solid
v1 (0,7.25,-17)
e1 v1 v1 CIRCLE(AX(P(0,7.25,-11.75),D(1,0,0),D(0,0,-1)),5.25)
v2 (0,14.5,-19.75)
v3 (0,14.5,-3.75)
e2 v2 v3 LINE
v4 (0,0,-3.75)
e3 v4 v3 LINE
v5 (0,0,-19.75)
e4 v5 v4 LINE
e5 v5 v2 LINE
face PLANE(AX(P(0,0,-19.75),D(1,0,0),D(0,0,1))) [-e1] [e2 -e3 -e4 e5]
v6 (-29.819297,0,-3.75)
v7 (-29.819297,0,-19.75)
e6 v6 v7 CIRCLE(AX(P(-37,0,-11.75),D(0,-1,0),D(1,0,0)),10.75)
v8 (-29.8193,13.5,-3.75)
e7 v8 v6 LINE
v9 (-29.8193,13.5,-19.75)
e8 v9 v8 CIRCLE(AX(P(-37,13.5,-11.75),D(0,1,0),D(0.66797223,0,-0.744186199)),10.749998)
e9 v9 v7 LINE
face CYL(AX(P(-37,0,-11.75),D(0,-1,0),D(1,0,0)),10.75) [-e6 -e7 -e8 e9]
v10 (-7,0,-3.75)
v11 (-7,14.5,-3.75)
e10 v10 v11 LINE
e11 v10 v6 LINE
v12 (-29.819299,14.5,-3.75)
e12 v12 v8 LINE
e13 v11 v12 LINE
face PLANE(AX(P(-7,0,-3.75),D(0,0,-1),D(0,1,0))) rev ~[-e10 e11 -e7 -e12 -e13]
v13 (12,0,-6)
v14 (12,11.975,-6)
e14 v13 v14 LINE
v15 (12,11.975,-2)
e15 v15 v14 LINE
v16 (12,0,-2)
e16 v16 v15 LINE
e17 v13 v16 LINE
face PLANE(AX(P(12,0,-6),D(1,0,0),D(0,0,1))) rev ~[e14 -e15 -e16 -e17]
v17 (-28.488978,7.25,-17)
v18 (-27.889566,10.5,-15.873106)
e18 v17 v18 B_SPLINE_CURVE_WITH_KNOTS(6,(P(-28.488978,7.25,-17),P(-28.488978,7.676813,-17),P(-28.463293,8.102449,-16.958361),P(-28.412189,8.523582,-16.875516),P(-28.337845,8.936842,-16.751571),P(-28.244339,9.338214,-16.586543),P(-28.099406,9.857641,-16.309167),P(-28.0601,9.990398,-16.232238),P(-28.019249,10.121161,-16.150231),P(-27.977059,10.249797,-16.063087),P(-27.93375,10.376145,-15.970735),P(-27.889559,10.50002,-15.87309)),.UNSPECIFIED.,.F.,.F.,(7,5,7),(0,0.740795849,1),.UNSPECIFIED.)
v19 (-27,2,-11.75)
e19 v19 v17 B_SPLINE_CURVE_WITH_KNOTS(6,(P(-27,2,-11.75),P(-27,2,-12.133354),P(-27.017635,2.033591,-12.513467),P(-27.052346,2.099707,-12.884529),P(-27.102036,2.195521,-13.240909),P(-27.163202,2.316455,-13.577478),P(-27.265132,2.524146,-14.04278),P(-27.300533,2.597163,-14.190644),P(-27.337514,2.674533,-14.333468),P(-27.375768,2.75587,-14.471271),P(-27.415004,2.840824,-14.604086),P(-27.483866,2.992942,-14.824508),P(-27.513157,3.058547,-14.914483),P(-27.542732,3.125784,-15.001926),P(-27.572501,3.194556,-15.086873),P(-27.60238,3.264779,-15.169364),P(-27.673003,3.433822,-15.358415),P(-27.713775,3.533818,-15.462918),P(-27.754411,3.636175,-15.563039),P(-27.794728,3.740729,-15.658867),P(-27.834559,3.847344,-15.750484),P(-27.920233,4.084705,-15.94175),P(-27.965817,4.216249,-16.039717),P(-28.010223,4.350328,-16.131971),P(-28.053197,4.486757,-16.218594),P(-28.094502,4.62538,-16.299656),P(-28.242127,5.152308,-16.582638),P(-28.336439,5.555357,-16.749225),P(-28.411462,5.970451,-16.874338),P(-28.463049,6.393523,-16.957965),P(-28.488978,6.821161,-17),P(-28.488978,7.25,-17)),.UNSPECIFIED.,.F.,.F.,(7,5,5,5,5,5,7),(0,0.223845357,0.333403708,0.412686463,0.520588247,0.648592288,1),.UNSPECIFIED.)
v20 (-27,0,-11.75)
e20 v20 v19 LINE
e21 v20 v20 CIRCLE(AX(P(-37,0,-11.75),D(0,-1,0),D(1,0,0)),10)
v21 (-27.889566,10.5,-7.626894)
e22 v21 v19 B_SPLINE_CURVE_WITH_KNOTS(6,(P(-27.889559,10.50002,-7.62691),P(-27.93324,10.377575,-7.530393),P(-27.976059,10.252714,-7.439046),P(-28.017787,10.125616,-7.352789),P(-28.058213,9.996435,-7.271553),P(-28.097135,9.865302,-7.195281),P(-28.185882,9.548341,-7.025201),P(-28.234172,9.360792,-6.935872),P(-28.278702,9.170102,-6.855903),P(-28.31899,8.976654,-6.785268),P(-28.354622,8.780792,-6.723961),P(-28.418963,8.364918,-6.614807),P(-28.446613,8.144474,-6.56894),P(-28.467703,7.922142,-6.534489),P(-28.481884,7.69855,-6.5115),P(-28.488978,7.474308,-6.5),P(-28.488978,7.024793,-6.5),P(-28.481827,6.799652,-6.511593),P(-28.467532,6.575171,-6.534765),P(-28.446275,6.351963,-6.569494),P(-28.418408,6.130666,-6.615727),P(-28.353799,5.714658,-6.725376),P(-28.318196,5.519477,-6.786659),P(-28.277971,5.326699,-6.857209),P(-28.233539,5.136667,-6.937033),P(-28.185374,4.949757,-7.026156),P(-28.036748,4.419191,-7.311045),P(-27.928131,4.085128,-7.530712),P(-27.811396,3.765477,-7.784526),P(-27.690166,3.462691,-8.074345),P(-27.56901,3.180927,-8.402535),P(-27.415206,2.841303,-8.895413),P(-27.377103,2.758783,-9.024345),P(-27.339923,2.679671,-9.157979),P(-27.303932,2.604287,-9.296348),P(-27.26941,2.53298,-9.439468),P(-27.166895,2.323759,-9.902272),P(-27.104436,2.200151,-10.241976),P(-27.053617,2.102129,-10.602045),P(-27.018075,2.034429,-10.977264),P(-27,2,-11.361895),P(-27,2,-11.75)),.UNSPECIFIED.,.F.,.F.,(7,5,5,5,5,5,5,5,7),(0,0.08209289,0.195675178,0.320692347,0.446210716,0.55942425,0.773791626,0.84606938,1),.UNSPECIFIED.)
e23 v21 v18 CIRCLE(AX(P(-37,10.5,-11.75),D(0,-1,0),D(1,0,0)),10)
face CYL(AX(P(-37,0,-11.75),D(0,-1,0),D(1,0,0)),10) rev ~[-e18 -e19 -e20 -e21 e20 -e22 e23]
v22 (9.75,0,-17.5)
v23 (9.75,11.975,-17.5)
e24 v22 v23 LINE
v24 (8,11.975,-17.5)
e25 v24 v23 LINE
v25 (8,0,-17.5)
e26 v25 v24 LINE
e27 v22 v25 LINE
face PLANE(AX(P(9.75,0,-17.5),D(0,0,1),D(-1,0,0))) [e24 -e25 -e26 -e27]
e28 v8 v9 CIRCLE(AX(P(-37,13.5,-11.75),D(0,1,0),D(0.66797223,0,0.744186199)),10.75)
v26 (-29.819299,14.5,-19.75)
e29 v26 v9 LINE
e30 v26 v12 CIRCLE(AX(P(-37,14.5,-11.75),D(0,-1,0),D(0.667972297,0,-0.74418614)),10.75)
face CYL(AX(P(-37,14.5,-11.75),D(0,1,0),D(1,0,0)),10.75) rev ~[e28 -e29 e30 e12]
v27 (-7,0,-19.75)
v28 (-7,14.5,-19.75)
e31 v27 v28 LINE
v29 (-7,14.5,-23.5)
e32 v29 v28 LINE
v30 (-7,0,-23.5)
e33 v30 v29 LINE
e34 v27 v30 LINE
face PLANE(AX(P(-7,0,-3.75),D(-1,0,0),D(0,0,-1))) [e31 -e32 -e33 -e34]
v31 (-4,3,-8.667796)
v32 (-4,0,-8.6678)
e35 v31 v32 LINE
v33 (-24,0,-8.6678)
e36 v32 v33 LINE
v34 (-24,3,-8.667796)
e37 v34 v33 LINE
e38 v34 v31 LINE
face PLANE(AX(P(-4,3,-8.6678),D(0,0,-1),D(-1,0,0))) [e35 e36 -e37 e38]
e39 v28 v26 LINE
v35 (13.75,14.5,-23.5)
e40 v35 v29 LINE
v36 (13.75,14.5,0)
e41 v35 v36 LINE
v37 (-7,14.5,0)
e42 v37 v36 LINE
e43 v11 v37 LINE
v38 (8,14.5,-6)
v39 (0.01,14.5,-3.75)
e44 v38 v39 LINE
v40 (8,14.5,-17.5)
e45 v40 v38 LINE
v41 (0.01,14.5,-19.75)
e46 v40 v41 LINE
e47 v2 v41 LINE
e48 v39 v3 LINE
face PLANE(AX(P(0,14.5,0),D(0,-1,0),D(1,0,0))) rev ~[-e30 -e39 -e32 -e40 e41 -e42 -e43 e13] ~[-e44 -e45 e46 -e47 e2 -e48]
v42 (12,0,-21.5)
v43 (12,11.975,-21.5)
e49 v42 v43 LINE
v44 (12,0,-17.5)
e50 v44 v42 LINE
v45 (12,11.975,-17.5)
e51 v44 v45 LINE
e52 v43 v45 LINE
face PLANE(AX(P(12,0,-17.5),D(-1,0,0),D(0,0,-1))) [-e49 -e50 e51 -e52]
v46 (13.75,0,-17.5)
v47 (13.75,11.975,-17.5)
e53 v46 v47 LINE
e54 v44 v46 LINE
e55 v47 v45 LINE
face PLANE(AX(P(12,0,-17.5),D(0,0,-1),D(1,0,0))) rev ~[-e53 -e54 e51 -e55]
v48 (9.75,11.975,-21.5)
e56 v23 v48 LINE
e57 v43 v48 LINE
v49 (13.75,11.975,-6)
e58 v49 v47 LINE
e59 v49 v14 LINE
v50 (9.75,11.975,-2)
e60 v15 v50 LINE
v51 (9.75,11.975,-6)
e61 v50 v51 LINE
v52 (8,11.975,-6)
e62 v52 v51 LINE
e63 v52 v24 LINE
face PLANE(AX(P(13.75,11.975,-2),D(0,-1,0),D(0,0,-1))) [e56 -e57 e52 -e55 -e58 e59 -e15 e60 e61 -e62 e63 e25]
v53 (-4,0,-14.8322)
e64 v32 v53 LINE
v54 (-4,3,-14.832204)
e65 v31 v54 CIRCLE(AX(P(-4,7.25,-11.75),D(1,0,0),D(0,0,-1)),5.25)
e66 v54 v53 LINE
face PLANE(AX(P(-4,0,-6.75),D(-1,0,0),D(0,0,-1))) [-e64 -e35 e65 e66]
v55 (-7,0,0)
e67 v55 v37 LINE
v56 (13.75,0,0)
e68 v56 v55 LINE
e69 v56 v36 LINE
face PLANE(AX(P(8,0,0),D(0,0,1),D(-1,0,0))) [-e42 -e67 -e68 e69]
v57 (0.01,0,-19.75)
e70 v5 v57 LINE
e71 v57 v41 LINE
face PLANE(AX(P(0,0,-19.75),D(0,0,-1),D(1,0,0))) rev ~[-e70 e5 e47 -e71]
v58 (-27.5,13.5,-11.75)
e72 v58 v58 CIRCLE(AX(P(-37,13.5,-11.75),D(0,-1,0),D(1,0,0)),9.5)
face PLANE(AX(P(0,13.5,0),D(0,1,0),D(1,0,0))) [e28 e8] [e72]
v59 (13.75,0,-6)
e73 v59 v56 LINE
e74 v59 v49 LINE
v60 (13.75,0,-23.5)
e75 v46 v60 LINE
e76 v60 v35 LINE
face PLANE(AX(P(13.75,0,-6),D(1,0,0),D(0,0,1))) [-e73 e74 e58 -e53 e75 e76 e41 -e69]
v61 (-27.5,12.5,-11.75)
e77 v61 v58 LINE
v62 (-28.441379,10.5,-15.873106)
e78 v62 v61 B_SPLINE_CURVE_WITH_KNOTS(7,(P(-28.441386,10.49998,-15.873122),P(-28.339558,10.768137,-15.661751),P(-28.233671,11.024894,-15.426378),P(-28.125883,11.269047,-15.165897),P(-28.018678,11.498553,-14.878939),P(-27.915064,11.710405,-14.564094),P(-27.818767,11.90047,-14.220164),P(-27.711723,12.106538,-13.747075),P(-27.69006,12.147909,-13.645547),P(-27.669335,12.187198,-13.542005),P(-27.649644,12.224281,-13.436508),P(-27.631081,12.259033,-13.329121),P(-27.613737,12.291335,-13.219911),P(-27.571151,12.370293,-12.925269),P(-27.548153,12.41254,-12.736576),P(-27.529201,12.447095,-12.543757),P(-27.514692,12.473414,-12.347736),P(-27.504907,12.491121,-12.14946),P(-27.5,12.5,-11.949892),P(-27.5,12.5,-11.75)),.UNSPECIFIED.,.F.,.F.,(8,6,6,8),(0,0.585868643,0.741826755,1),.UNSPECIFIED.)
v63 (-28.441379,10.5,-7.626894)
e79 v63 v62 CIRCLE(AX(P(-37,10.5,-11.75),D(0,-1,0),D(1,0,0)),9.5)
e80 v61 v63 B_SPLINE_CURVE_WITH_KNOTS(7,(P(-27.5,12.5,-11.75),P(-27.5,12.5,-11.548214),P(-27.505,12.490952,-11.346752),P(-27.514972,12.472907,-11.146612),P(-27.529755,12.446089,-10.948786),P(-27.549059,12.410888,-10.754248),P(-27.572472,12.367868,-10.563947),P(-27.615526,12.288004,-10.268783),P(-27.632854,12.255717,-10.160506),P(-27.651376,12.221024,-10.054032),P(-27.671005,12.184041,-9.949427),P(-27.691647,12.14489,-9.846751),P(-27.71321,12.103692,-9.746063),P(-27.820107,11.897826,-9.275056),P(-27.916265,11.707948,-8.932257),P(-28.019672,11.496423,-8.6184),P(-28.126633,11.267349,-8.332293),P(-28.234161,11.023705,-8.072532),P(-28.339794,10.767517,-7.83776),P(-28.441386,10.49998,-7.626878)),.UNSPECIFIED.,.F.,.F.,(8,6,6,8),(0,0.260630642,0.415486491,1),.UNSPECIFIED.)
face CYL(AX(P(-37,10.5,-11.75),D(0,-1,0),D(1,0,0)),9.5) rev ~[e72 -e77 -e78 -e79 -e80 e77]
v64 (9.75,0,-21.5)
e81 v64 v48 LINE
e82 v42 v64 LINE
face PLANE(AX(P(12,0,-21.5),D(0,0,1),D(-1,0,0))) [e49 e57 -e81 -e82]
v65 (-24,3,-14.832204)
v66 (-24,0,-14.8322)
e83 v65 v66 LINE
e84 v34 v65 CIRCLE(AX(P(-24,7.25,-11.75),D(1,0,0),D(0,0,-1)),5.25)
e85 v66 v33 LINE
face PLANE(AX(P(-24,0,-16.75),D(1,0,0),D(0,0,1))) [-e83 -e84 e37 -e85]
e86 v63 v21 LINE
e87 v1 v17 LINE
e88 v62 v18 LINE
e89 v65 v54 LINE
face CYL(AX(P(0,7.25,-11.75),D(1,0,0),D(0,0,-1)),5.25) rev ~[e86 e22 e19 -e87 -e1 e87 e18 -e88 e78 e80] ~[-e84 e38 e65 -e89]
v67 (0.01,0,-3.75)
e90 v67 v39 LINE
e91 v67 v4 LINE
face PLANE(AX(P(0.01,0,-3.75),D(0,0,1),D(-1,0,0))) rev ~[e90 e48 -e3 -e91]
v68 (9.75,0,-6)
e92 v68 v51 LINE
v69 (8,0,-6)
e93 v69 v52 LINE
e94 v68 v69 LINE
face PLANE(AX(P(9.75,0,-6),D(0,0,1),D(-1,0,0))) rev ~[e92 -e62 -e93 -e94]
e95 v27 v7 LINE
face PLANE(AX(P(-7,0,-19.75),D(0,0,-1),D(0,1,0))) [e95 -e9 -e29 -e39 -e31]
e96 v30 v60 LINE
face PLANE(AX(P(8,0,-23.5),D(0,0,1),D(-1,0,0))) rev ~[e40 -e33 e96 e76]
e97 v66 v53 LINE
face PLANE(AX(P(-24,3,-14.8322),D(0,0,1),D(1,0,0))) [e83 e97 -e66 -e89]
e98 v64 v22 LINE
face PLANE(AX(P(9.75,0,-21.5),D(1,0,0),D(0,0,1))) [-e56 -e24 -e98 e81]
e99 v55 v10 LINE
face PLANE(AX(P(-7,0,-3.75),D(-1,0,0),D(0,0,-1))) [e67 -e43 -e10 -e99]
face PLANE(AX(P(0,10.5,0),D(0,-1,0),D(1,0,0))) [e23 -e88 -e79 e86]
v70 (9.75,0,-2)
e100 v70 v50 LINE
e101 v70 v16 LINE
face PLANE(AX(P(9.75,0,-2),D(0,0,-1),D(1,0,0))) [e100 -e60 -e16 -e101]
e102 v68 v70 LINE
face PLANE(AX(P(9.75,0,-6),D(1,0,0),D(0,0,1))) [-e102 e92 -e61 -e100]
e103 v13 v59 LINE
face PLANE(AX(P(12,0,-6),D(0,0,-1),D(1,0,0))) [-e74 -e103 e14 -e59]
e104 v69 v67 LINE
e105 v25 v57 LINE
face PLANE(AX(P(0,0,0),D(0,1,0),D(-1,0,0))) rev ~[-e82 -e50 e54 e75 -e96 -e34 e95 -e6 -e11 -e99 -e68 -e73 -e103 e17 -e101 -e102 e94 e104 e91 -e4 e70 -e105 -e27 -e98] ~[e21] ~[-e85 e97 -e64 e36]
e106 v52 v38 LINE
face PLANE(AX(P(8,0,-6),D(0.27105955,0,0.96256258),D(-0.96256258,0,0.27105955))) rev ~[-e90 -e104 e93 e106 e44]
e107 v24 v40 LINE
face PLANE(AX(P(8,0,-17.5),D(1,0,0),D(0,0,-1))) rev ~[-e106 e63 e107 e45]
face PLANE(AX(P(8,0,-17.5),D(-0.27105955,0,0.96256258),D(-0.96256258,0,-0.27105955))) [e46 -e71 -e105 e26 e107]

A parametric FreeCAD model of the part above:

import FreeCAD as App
import Part
import Sketcher
from FreeCAD import Vector


def add_polygon(sketch, points):
    """Adds a closed chain of lines whose ends are joined by coincident constraints."""
    first, n = sketch.GeometryCount, len(points)
    for a, b in zip(points, points[1:] + points[:1]):
        sketch.addGeometry(Part.LineSegment(App.Vector(*a, 0), App.Vector(*b, 0)), False)
    for i in range(n):
        sketch.addConstraint(Sketcher.Constraint("Coincident", first + i, 2, first + (i + 1) % n, 1))

doc = App.newDocument("Part")
body = doc.addObject("PartDesign::Body", "Body")

sketch1 = body.newObject("Sketcher::SketchObject", "Sketch")
sketch1.AttachmentSupport = (doc.getObject("XZ_Plane"), [""])
sketch1.MapMode = "FlatFace"
add_polygon(sketch1, [(0.01, -3.75), (0, -3.75), (0, -19.75), (0.01, -19.75), (8, -17.5), (9.75, -17.5), (9.75, -21.5), (12, -21.5), (12, -17.5), (13.75, -17.5), (13.75, -23.5), (-7, -23.5), (-7, 0), (13.75, 0), (13.75, -6), (12, -6), (12, -2), (9.75, -2), (9.75, -6), (8, -6)])
sketch1.addConstraint([
    Sketcher.Constraint("Horizontal", 0),
    Sketcher.Constraint("Vertical", 1),
    Sketcher.Constraint("Horizontal", 2),
    Sketcher.Constraint("Horizontal", 4),
    Sketcher.Constraint("Vertical", 5),
    Sketcher.Constraint("Horizontal", 6),
    Sketcher.Constraint("Vertical", 7),
    Sketcher.Constraint("Horizontal", 8),
    Sketcher.Constraint("Vertical", 9),
    Sketcher.Constraint("Horizontal", 10),
    Sketcher.Constraint("Vertical", 11),
    Sketcher.Constraint("Horizontal", 12),
    Sketcher.Constraint("Vertical", 13),
    Sketcher.Constraint("Horizontal", 14),
    Sketcher.Constraint("Vertical", 15),
    Sketcher.Constraint("Horizontal", 16),
    Sketcher.Constraint("Vertical", 17),
    Sketcher.Constraint("Horizontal", 18),
    Sketcher.Constraint("PointOnObject", 0, 2, -2),
    Sketcher.Constraint("PointOnObject", 11, 2, -1),
    Sketcher.Constraint("Horizontal", 4, 2, 7, 2),
    Sketcher.Constraint("Horizontal", 14, 2, 17, 2),
    Sketcher.Constraint("Vertical", 9, 2, 12, 2),
    Sketcher.Constraint("Vertical", 7, 2, 14, 2),
    Sketcher.Constraint("Vertical", 5, 2, 16, 2),
    Sketcher.Constraint("Vertical", 3, 2, 18, 2),
    Sketcher.Constraint("Vertical", 2, 2, 19, 2),
    Sketcher.Constraint("Equal", 4, 8),
    Sketcher.Constraint("Equal", 9, 13),
    Sketcher.Constraint("Equal", 7, 15),
    Sketcher.Constraint("Equal", 3, 19),
    Sketcher.Constraint("DistanceY", 5, 2, 5, 1, 4.0),
    Sketcher.Constraint("DistanceY", 9, 2, 9, 1, 6.0),
    Sketcher.Constraint("DistanceX", 10, 2, -1, 1, 7.0),
    Sketcher.Constraint("DistanceX", 3, 2, 6, 2, 4.0),
    Sketcher.Constraint("DistanceX", 10, 2, 3, 2, 15.0),
    Sketcher.Constraint("DistanceY", 1, 2, 1, 1, 16.0),
    Sketcher.Constraint("DistanceY", 11, 1, 11, 2, 23.5),
    Sketcher.Constraint("DistanceX", 0, 2, 0, 1, 0.01),
    Sketcher.Constraint("DistanceX", 4, 1, 4, 2, 1.75),
])
pad1 = body.newObject("PartDesign::Pad", "Pad")
pad1.Profile = sketch1
pad1.Length = 14.5
pad1.Reversed = True

sketch2 = body.newObject("Sketcher::SketchObject", "Sketch001")
sketch2.AttachmentSupport = (doc.getObject("YZ_Plane"), [""])
sketch2.MapMode = "FlatFace"
sketch2.AttachmentOffset = App.Placement(Vector(0, 0, -7), App.Rotation())
add_polygon(sketch2, [(0, -19.75), (0, -3.75), (14.5, -3.75), (14.5, -19.75)])
sketch2.addConstraint([
    Sketcher.Constraint("Vertical", 0),
    Sketcher.Constraint("Horizontal", 1),
    Sketcher.Constraint("Vertical", 2),
    Sketcher.Constraint("Horizontal", 3),
    Sketcher.Constraint("PointOnObject", 0, 2, -2),
    Sketcher.Constraint("DistanceY", 0, 1, 0, 2, 16.0),
    Sketcher.Constraint("DistanceY", 0, 2, -1, 1, 3.75),
    Sketcher.Constraint("DistanceX", 1, 1, 1, 2, 14.5),
])
pad2 = body.newObject("PartDesign::Pad", "Pad001")
pad2.Profile = sketch2
pad2.Length = 30
pad2.Reversed = True

sketch3 = body.newObject("Sketcher::SketchObject", "Sketch002")
sketch3.AttachmentSupport = (doc.getObject("XZ_Plane"), [""])
sketch3.MapMode = "FlatFace"
sketch3.addGeometry(Part.Circle(Vector(-37, -11.75, 0), Vector(0, 0, 1), 10.75), False)
sketch3.addConstraint([
    Sketcher.Constraint("Diameter", 0, 21.5),
    Sketcher.Constraint("DistanceX", 0, 3, -1, 1, 37.0),
    Sketcher.Constraint("DistanceY", 0, 3, -1, 1, 11.75),
])
pad3 = body.newObject("PartDesign::Pad", "Pad002")
pad3.Profile = sketch3
pad3.Length = 14.5
pad3.Reversed = True

sketch4 = body.newObject("Sketcher::SketchObject", "Sketch003")
sketch4.AttachmentSupport = (doc.getObject("XZ_Plane"), [""])
sketch4.MapMode = "FlatFace"
sketch4.addGeometry(Part.Circle(Vector(-37, -11.75, 0), Vector(0, 0, 1), 10), False)
sketch4.addConstraint([
    Sketcher.Constraint("Diameter", 0, 20.0),
    Sketcher.Constraint("DistanceX", 0, 3, -1, 1, 37.0),
    Sketcher.Constraint("DistanceY", 0, 3, -1, 1, 11.75),
])
pocket1 = body.newObject("PartDesign::Pocket", "Pocket")
pocket1.Profile = sketch4
pocket1.Length = 10.5

sketch5 = body.newObject("Sketcher::SketchObject", "Sketch004")
sketch5.AttachmentSupport = (doc.getObject("XZ_Plane"), [""])
sketch5.MapMode = "FlatFace"
sketch5.AttachmentOffset = App.Placement(Vector(0, 0, -10.5), App.Rotation())
sketch5.addGeometry(Part.Circle(Vector(-37, -11.75, 0), Vector(0, 0, 1), 9.5), False)
sketch5.addConstraint([
    Sketcher.Constraint("Diameter", 0, 19.0),
    Sketcher.Constraint("DistanceX", 0, 3, -1, 1, 37.0),
    Sketcher.Constraint("DistanceY", 0, 3, -1, 1, 11.75),
])
pocket2 = body.newObject("PartDesign::Pocket", "Pocket001")
pocket2.Profile = sketch5
pocket2.Length = 10.5

sketch6 = body.newObject("Sketcher::SketchObject", "Sketch005")
sketch6.AttachmentSupport = (doc.getObject("YZ_Plane"), [""])
sketch6.MapMode = "FlatFace"
sketch6.addGeometry(Part.Circle(Vector(7.25, -11.75, 0), Vector(0, 0, 1), 5.25), False)
sketch6.addConstraint([
    Sketcher.Constraint("Diameter", 0, 10.5),
    Sketcher.Constraint("DistanceX", -1, 1, 0, 3, 7.25),
    Sketcher.Constraint("DistanceY", 0, 3, -1, 1, 11.75),
])
pocket3 = body.newObject("PartDesign::Pocket", "Pocket002")
pocket3.Profile = sketch6
pocket3.Length = 40

sketch7 = body.newObject("Sketcher::SketchObject", "Sketch006")
sketch7.AttachmentSupport = (doc.getObject("XZ_Plane"), [""])
sketch7.MapMode = "FlatFace"
sketch7.AttachmentOffset = App.Placement(Vector(0, 0, -14.5), App.Rotation())
sketch7.addGeometry(Part.Circle(Vector(-37, -11.75, 0), Vector(0, 0, 1), 10.749998), False)
sketch7.addConstraint([
    Sketcher.Constraint("Diameter", 0, 21.5),
    Sketcher.Constraint("DistanceX", 0, 3, -1, 1, 37.0),
    Sketcher.Constraint("DistanceY", 0, 3, -1, 1, 11.75),
])
pocket4 = body.newObject("PartDesign::Pocket", "Pocket003")
pocket4.Profile = sketch7
pocket4.Length = 1
pocket4.Reversed = True

sketch8 = body.newObject("Sketcher::SketchObject", "Sketch007")
sketch8.AttachmentSupport = (doc.getObject("XZ_Plane"), [""])
sketch8.MapMode = "FlatFace"
add_polygon(sketch8, [(-24, -16.75), (-4, -16.75), (-4, -6.75), (-24, -6.75)])
sketch8.addConstraint([
    Sketcher.Constraint("Horizontal", 0),
    Sketcher.Constraint("Vertical", 1),
    Sketcher.Constraint("Horizontal", 2),
    Sketcher.Constraint("Vertical", 3),
    Sketcher.Constraint("DistanceX", 0, 1, 0, 2, 20.0),
    Sketcher.Constraint("DistanceY", 1, 1, 1, 2, 10.0),
    Sketcher.Constraint("DistanceX", 0, 2, -1, 1, 4.0),
    Sketcher.Constraint("DistanceY", 0, 2, -1, 1, 16.75),
])
pocket5 = body.newObject("PartDesign::Pocket", "Pocket004")
pocket5.Profile = sketch8
pocket5.Length = 3

sketch9 = body.newObject("Sketcher::SketchObject", "Sketch008")
sketch9.AttachmentSupport = (doc.getObject("XZ_Plane"), [""])
sketch9.MapMode = "FlatFace"
sketch9.AttachmentOffset = App.Placement(Vector(0, 0, -3), App.Rotation())
add_polygon(sketch9, [(-24, -8.6678), (-4, -8.6678), (-4, -6.75), (-24, -6.75)])
add_polygon(sketch9, [(-4, -14.8322), (-24, -14.8322), (-24, -16.75), (-4, -16.75)])
sketch9.addConstraint([
    Sketcher.Constraint("Horizontal", 0),
    Sketcher.Constraint("Vertical", 1),
    Sketcher.Constraint("Horizontal", 2),
    Sketcher.Constraint("Vertical", 3),
    Sketcher.Constraint("Horizontal", 4),
    Sketcher.Constraint("Vertical", 5),
    Sketcher.Constraint("Horizontal", 6),
    Sketcher.Constraint("Vertical", 7),
    Sketcher.Constraint("Vertical", 3, 2, 4, 2),
    Sketcher.Constraint("Vertical", 1, 2, 6, 2),
    Sketcher.Constraint("Equal", 3, 5),
    Sketcher.Constraint("DistanceX", 0, 1, 0, 2, 20.0),
    Sketcher.Constraint("DistanceX", 0, 2, -1, 1, 4.0),
    Sketcher.Constraint("DistanceY", 5, 2, 2, 2, 10.0),
    Sketcher.Constraint("DistanceY", 1, 2, -1, 1, 6.75),
    Sketcher.Constraint("DistanceY", 1, 1, 1, 2, 1.9178),
])
pad4 = body.newObject("PartDesign::Pad", "Pad003")
pad4.Profile = sketch9
pad4.Length = 3

sketch10 = body.newObject("Sketcher::SketchObject", "Sketch009")
sketch10.AttachmentSupport = (doc.getObject("YZ_Plane"), [""])
sketch10.MapMode = "FlatFace"
sketch10.AttachmentOffset = App.Placement(Vector(0, 0, 13.75), App.Rotation())
add_polygon(sketch10, [(14.5, -2), (11.975, -2), (11.975, -21.5), (14.5, -21.5)])
sketch10.addConstraint([
    Sketcher.Constraint("Horizontal", 0),
    Sketcher.Constraint("Vertical", 1),
    Sketcher.Constraint("Horizontal", 2),
    Sketcher.Constraint("Vertical", 3),
    Sketcher.Constraint("DistanceY", 1, 2, 1, 1, 19.5),
    Sketcher.Constraint("DistanceY", 0, 2, -1, 1, 2.0),
    Sketcher.Constraint("DistanceX", -1, 1, 2, 2, 14.5),
    Sketcher.Constraint("DistanceX", 0, 2, 0, 1, 2.525),
])
pad5 = body.newObject("PartDesign::Pad", "Pad004")
pad5.Profile = sketch10
pad5.Length = 5.75
pad5.Reversed = True

doc.recompute()
